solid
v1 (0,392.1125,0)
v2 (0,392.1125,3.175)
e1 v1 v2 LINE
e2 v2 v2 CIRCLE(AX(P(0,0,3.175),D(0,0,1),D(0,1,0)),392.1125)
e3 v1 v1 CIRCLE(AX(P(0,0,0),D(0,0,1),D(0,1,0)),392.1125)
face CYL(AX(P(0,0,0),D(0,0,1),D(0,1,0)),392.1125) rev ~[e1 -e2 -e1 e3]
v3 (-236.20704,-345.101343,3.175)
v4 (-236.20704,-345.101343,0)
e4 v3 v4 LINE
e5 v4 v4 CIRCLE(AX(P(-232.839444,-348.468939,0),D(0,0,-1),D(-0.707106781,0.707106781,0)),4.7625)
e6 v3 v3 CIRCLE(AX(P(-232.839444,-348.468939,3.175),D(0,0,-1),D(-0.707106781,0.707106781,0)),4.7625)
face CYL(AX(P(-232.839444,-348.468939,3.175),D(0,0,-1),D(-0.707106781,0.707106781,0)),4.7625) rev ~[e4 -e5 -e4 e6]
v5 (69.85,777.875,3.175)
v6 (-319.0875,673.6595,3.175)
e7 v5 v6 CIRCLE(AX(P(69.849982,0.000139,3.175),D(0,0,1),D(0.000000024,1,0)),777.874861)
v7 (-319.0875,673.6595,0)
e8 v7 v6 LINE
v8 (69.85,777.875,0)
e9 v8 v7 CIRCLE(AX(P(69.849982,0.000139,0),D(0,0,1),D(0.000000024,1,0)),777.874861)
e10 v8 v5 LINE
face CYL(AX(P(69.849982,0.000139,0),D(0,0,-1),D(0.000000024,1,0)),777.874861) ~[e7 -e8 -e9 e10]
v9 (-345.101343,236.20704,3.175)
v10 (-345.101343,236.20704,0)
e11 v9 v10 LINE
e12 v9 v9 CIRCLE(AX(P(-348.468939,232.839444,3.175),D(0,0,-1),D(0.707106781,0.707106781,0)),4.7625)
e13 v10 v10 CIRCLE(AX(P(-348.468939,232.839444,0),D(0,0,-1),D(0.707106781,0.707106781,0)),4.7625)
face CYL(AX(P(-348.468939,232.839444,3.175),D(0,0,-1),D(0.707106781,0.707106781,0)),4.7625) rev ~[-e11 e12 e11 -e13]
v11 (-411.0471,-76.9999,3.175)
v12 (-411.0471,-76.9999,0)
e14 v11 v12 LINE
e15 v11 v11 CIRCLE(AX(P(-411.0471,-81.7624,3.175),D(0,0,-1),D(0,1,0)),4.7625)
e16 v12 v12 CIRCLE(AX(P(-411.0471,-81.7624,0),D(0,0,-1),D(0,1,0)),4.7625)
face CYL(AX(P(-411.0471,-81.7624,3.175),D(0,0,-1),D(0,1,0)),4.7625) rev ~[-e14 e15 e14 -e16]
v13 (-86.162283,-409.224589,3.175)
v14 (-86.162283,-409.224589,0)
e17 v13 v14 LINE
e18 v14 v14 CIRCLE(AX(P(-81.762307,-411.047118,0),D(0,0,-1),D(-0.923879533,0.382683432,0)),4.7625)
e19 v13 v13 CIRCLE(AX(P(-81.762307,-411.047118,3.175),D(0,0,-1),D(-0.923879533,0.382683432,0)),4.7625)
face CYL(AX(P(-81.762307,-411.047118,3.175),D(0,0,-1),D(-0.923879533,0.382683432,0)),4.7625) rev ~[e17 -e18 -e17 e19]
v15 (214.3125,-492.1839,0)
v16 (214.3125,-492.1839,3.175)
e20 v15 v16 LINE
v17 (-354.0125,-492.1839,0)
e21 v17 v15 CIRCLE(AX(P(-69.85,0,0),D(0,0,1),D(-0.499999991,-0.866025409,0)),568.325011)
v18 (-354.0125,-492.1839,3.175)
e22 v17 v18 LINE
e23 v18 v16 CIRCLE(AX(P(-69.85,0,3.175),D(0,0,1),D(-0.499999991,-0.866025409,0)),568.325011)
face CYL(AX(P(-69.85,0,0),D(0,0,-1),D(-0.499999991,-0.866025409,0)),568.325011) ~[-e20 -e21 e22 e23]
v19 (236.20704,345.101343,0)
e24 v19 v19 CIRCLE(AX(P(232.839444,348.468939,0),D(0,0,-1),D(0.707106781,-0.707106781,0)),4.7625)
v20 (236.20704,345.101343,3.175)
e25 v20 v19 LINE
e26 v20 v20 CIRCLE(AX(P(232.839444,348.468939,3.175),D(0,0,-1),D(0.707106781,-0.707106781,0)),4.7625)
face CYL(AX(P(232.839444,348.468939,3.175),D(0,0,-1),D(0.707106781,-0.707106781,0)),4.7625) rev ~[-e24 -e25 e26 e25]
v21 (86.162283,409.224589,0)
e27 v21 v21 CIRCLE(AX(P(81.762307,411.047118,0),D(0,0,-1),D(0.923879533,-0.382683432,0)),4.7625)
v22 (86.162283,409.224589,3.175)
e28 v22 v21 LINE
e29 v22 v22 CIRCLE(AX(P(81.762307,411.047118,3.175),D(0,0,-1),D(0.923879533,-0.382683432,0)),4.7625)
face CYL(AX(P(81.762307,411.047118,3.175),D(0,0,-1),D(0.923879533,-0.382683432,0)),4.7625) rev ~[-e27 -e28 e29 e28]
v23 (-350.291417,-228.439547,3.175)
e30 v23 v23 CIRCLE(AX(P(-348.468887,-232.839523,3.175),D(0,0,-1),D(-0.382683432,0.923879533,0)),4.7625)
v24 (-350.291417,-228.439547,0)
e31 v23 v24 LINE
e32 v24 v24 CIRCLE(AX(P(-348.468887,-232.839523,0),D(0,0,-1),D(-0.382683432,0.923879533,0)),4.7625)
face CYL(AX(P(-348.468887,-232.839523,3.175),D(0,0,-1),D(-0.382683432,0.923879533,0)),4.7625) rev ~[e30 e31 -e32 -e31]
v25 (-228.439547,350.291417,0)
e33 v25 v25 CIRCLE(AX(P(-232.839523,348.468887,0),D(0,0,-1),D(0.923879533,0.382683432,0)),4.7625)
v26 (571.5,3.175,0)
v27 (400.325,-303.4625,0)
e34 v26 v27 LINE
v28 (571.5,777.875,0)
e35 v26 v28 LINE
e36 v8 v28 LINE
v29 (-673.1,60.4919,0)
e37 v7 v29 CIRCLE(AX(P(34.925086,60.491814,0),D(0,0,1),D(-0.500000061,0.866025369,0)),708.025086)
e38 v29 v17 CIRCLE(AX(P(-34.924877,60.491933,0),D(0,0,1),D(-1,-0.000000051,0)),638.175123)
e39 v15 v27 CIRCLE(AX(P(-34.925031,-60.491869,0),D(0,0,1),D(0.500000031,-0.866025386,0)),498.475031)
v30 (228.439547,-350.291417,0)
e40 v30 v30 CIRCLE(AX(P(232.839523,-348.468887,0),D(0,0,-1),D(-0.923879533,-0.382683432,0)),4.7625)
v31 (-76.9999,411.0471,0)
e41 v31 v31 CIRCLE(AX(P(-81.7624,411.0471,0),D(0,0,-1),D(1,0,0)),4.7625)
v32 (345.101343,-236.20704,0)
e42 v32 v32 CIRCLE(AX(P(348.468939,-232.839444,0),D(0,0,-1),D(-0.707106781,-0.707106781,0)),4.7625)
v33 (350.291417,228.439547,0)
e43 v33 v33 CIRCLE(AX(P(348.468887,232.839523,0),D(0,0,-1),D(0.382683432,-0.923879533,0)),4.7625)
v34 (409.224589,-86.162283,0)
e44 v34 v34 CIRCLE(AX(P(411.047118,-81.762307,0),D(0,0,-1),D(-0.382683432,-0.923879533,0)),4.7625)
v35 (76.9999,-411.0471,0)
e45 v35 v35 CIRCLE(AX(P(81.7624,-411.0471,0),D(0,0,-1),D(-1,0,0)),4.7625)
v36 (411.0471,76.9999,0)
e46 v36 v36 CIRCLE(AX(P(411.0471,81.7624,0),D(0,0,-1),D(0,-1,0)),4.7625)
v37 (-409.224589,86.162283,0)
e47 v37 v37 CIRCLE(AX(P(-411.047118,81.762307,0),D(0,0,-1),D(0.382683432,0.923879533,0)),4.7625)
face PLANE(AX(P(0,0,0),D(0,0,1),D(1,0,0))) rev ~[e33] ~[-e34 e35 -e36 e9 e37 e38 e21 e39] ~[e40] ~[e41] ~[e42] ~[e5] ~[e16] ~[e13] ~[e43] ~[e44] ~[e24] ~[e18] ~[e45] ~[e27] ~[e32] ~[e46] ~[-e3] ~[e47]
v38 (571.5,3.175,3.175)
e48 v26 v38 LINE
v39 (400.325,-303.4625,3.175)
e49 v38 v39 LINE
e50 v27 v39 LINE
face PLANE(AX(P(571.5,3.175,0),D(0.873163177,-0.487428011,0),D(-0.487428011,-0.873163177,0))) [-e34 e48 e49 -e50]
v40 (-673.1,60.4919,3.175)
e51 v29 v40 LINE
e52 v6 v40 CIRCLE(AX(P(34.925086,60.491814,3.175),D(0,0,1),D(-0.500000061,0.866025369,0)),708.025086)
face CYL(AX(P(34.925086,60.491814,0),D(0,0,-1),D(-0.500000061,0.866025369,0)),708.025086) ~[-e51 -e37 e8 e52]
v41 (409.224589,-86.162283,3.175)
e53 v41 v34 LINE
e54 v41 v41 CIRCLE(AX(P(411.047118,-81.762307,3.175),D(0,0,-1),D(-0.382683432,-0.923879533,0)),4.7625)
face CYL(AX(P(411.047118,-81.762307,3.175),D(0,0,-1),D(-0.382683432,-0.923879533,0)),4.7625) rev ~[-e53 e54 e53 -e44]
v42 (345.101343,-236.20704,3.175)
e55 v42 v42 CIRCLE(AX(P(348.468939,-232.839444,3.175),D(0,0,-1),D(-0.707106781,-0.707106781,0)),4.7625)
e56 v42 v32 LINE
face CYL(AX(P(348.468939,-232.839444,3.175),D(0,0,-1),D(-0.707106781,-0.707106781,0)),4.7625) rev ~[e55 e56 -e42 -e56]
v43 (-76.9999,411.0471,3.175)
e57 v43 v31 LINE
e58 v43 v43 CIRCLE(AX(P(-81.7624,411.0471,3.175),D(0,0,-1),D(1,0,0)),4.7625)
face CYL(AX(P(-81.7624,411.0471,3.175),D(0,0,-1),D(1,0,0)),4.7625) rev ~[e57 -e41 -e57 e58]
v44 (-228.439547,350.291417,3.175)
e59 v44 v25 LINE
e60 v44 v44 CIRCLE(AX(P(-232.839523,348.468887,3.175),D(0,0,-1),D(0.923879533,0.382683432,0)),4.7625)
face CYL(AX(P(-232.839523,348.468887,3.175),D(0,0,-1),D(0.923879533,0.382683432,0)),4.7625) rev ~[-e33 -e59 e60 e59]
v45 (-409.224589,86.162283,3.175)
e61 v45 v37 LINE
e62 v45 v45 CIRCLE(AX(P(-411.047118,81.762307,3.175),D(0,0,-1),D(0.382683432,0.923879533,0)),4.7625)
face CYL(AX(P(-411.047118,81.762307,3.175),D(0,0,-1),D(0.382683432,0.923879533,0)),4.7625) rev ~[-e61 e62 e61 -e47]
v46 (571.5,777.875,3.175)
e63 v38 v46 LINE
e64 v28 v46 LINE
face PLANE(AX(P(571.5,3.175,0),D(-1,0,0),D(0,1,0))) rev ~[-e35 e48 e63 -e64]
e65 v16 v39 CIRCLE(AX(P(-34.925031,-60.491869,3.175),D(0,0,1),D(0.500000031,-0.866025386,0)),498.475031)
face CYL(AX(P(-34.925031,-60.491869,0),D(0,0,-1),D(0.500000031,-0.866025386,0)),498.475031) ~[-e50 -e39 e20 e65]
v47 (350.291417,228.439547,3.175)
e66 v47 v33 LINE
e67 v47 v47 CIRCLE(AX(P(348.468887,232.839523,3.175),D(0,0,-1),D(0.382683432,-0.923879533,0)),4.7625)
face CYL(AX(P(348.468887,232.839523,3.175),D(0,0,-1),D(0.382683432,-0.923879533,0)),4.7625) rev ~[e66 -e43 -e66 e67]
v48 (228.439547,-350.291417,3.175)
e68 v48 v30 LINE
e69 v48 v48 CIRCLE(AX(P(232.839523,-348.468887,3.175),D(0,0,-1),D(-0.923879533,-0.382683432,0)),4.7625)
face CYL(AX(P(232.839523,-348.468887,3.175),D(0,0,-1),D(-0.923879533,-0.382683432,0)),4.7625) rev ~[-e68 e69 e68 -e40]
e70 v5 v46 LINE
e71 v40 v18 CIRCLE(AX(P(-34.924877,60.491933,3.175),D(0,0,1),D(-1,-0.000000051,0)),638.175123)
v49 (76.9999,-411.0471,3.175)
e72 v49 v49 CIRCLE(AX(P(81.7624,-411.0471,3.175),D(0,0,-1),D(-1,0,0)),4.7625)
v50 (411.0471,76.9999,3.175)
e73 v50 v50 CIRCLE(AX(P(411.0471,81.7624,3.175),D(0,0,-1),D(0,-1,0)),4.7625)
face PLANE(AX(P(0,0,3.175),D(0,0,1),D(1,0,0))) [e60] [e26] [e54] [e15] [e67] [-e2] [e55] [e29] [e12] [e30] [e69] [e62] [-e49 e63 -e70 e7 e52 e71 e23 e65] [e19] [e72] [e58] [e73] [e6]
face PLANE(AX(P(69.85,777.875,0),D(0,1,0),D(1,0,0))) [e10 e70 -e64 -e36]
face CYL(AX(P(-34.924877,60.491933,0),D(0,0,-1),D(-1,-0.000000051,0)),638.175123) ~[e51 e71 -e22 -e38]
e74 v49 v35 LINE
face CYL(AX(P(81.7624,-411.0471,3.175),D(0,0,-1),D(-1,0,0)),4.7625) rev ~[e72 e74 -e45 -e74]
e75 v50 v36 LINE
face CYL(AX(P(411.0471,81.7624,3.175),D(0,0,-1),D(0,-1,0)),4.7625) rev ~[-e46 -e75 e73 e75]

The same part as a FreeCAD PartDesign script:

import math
import FreeCAD as App
import Part
import Sketcher
from FreeCAD import Vector
Q = App.Units.Quantity

doc = App.newDocument("Part")
body = doc.addObject("PartDesign::Body", "Body")

sketch1 = body.newObject("Sketcher::SketchObject", "Sketch")
sketch1.AttachmentSupport = (doc.getObject("XY_Plane"), [""])
sketch1.MapMode = "FlatFace"
sketch1.addGeometry(Part.LineSegment(Vector(572, 778, 0), Vector(70, 778, 0)), False)
sketch1.addGeometry(Part.ArcOfCircle(Part.Circle(Vector(70, 0, 0), Vector(0, 0, 1), 778), math.radians(90), math.radians(120)), False)
sketch1.addGeometry(Part.ArcOfCircle(Part.Circle(Vector(35, 60, 0), Vector(0, 0, 1), 708), math.radians(120), math.radians(180)), False)
sketch1.addGeometry(Part.ArcOfCircle(Part.Circle(Vector(-35, 60, 0), Vector(0, 0, 1), 638), math.radians(180), math.radians(240)), False)
sketch1.addGeometry(Part.ArcOfCircle(Part.Circle(Vector(-70, 0, 0), Vector(0, 0, 1), 568), math.radians(-120), math.radians(-60)), False)
sketch1.addGeometry(Part.ArcOfCircle(Part.Circle(Vector(-35, -60, 0), Vector(0, 0, 1), 498), math.radians(-60), math.radians(-29)), False)
sketch1.addGeometry(Part.LineSegment(Vector(400, -303, 0), Vector(572, 3, 0)), False)
sketch1.addGeometry(Part.LineSegment(Vector(572, 3, 0), Vector(572, 778, 0)), False)
sketch1.addConstraint(Sketcher.Constraint("Tangent", 0, 2, 1, 1))
sketch1.addConstraint(Sketcher.Constraint("Tangent", 1, 2, 2, 1))
sketch1.addConstraint(Sketcher.Constraint("Tangent", 2, 2, 3, 1))
sketch1.addConstraint(Sketcher.Constraint("Tangent", 3, 2, 4, 1))
sketch1.addConstraint(Sketcher.Constraint("Tangent", 4, 2, 5, 1))
sketch1.addConstraint(Sketcher.Constraint("Tangent", 5, 2, 6, 1))
sketch1.addConstraint(Sketcher.Constraint("Coincident", 6, 2, 7, 1))
sketch1.addConstraint(Sketcher.Constraint("Coincident", 7, 2, 0, 1))
sketch1.addConstraint(Sketcher.Constraint("Horizontal", 0))
sketch1.addConstraint(Sketcher.Constraint("Vertical", 7))
sketch1.addConstraint(Sketcher.Constraint("Symmetric", 1, 3, 4, 3, -1, 1))
sketch1.addConstraint(Sketcher.Constraint("Symmetric", 2, 3, 5, 3, -1, 1))
sketch1.addConstraint(Sketcher.Constraint("Symmetric", 2, 3, 3, 3, -2))
sketch1.addConstraint(Sketcher.Constraint("PointOnObject", 1, 3, -1))
sketch1.addConstraint(Sketcher.Constraint("DistanceY", 7, 1, 7, 2, Q("30.5 in")))
sketch1.addConstraint(Sketcher.Constraint("Radius", 1, Q("30.625 in")))
sketch1.addConstraint(Sketcher.Constraint("Radius", 5, Q("19.625 in")))
sketch1.addConstraint(Sketcher.Constraint("DistanceX", -1, 1, 6, 2, Q("22.5 in")))
sketch1.addConstraint(Sketcher.Constraint("DistanceX", 4, 3, 1, 3, Q("5.5 in")))
sketch1.addConstraint(Sketcher.Constraint("Radius", 2, Q("27.875 in")))
pad1 = body.newObject("PartDesign::Pad", "Pad")
pad1.Profile = sketch1
pad1.Length = Q("0.125 in")

sketch2 = body.newObject("Sketcher::SketchObject", "Sketch001")
sketch2.AttachmentSupport = (doc.getObject("XY_Plane"), [""])
sketch2.MapMode = "FlatFace"
sketch2.addGeometry(Part.Circle(Vector(0, 0, 0), Vector(0, 0, 1), 392), False)
sketch2.addConstraint(Sketcher.Constraint("Coincident", 0, 3, -1, 1))
sketch2.addConstraint(Sketcher.Constraint("Diameter", 0, Q("30.875 in")))
doc.recompute()
hole = body.newObject("PartDesign::Hole", "Hole")
hole.Profile = sketch2
hole.ThreadType = "None"
hole.Diameter = Q("30.875 in")
hole.DepthType = "ThroughAll"
hole.Reversed = True

sketch3 = body.newObject("Sketcher::SketchObject", "Sketch002")
sketch3.AttachmentSupport = (doc.getObject("XY_Plane"), [""])
sketch3.MapMode = "FlatFace"
sketch3.AttachmentOffset = App.Placement(Vector(0, 0, 0.125 * 25.4), App.Rotation())
sketch3.addGeometry(Part.Circle(Vector(411, 81.8, 0), Vector(0, 0, 1), 4.8), False)
sketch3.addConstraint(Sketcher.Constraint("Diameter", 0, Q("0.375 in")))
sketch3.addConstraint(Sketcher.Constraint("DistanceY", -1, 1, 0, 3, Q("3.219 in")))
sketch3.addConstraint(Sketcher.Constraint("DistanceX", -1, 1, 0, 3, Q("411.047 mm")))
doc.recompute()
hole2 = body.newObject("PartDesign::Hole", "Hole001")
hole2.Profile = sketch3
hole2.ThreadType = "None"
hole2.Diameter = Q("0.375 in")
hole2.DepthType = "ThroughAll"
doc.recompute()

polarpattern = body.newObject("PartDesign::PolarPattern", "PolarPattern")
polarpattern.Originals = [hole2]
polarpattern.Axis = (doc.getObject("Z_Axis"), [""])
polarpattern.Angle = 360
polarpattern.Occurrences = 16
body.Tip = polarpattern

doc.recompute()
